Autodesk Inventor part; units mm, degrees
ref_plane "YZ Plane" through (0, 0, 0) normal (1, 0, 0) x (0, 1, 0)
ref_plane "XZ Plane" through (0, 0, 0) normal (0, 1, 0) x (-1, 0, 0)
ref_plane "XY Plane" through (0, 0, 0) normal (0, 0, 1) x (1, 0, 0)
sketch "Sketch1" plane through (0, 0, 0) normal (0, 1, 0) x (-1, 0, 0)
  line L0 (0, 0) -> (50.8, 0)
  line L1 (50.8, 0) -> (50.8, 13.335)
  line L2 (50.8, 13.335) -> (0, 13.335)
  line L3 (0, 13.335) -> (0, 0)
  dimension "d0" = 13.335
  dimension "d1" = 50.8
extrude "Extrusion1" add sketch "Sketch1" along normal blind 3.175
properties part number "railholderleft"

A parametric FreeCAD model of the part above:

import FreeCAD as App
import Part
import Sketcher
from FreeCAD import Vector
Q = App.Units.Quantity


def add_polygon(sketch, points):
    """Adds a closed chain of lines whose ends are joined by coincident constraints."""
    first, n = sketch.GeometryCount, len(points)
    for a, b in zip(points, points[1:] + points[:1]):
        sketch.addGeometry(Part.LineSegment(App.Vector(*a, 0), App.Vector(*b, 0)), False)
    for i in range(n):
        sketch.addConstraint(Sketcher.Constraint("Coincident", first + i, 2, first + (i + 1) % n, 1))

doc = App.newDocument("Part")
body = doc.addObject("PartDesign::Body", "Body")

sketch1 = body.newObject("Sketcher::SketchObject", "Sketch")
sketch1.AttachmentSupport = (doc.getObject("XZ_Plane"), [""])
sketch1.MapMode = "FlatFace"
add_polygon(sketch1, [(0, 13), (0, 0), (-51, 0), (-51, 13)])
sketch1.addConstraint([
    Sketcher.Constraint("Vertical", 0),
    Sketcher.Constraint("Horizontal", 1),
    Sketcher.Constraint("Vertical", 2),
    Sketcher.Constraint("Horizontal", 3),
    Sketcher.Constraint("Coincident", 0, 2, -1, 1),
    Sketcher.Constraint("DistanceX", 1, 2, 1, 1, Q("2 in")),
    Sketcher.Constraint("DistanceY", 0, 2, 0, 1, Q("0.525 in")),
])
pad1 = body.newObject("PartDesign::Pad", "Pad")
pad1.Profile = sketch1
pad1.Length = Q("0.125 in")
pad1.Reversed = True

doc.recompute()
